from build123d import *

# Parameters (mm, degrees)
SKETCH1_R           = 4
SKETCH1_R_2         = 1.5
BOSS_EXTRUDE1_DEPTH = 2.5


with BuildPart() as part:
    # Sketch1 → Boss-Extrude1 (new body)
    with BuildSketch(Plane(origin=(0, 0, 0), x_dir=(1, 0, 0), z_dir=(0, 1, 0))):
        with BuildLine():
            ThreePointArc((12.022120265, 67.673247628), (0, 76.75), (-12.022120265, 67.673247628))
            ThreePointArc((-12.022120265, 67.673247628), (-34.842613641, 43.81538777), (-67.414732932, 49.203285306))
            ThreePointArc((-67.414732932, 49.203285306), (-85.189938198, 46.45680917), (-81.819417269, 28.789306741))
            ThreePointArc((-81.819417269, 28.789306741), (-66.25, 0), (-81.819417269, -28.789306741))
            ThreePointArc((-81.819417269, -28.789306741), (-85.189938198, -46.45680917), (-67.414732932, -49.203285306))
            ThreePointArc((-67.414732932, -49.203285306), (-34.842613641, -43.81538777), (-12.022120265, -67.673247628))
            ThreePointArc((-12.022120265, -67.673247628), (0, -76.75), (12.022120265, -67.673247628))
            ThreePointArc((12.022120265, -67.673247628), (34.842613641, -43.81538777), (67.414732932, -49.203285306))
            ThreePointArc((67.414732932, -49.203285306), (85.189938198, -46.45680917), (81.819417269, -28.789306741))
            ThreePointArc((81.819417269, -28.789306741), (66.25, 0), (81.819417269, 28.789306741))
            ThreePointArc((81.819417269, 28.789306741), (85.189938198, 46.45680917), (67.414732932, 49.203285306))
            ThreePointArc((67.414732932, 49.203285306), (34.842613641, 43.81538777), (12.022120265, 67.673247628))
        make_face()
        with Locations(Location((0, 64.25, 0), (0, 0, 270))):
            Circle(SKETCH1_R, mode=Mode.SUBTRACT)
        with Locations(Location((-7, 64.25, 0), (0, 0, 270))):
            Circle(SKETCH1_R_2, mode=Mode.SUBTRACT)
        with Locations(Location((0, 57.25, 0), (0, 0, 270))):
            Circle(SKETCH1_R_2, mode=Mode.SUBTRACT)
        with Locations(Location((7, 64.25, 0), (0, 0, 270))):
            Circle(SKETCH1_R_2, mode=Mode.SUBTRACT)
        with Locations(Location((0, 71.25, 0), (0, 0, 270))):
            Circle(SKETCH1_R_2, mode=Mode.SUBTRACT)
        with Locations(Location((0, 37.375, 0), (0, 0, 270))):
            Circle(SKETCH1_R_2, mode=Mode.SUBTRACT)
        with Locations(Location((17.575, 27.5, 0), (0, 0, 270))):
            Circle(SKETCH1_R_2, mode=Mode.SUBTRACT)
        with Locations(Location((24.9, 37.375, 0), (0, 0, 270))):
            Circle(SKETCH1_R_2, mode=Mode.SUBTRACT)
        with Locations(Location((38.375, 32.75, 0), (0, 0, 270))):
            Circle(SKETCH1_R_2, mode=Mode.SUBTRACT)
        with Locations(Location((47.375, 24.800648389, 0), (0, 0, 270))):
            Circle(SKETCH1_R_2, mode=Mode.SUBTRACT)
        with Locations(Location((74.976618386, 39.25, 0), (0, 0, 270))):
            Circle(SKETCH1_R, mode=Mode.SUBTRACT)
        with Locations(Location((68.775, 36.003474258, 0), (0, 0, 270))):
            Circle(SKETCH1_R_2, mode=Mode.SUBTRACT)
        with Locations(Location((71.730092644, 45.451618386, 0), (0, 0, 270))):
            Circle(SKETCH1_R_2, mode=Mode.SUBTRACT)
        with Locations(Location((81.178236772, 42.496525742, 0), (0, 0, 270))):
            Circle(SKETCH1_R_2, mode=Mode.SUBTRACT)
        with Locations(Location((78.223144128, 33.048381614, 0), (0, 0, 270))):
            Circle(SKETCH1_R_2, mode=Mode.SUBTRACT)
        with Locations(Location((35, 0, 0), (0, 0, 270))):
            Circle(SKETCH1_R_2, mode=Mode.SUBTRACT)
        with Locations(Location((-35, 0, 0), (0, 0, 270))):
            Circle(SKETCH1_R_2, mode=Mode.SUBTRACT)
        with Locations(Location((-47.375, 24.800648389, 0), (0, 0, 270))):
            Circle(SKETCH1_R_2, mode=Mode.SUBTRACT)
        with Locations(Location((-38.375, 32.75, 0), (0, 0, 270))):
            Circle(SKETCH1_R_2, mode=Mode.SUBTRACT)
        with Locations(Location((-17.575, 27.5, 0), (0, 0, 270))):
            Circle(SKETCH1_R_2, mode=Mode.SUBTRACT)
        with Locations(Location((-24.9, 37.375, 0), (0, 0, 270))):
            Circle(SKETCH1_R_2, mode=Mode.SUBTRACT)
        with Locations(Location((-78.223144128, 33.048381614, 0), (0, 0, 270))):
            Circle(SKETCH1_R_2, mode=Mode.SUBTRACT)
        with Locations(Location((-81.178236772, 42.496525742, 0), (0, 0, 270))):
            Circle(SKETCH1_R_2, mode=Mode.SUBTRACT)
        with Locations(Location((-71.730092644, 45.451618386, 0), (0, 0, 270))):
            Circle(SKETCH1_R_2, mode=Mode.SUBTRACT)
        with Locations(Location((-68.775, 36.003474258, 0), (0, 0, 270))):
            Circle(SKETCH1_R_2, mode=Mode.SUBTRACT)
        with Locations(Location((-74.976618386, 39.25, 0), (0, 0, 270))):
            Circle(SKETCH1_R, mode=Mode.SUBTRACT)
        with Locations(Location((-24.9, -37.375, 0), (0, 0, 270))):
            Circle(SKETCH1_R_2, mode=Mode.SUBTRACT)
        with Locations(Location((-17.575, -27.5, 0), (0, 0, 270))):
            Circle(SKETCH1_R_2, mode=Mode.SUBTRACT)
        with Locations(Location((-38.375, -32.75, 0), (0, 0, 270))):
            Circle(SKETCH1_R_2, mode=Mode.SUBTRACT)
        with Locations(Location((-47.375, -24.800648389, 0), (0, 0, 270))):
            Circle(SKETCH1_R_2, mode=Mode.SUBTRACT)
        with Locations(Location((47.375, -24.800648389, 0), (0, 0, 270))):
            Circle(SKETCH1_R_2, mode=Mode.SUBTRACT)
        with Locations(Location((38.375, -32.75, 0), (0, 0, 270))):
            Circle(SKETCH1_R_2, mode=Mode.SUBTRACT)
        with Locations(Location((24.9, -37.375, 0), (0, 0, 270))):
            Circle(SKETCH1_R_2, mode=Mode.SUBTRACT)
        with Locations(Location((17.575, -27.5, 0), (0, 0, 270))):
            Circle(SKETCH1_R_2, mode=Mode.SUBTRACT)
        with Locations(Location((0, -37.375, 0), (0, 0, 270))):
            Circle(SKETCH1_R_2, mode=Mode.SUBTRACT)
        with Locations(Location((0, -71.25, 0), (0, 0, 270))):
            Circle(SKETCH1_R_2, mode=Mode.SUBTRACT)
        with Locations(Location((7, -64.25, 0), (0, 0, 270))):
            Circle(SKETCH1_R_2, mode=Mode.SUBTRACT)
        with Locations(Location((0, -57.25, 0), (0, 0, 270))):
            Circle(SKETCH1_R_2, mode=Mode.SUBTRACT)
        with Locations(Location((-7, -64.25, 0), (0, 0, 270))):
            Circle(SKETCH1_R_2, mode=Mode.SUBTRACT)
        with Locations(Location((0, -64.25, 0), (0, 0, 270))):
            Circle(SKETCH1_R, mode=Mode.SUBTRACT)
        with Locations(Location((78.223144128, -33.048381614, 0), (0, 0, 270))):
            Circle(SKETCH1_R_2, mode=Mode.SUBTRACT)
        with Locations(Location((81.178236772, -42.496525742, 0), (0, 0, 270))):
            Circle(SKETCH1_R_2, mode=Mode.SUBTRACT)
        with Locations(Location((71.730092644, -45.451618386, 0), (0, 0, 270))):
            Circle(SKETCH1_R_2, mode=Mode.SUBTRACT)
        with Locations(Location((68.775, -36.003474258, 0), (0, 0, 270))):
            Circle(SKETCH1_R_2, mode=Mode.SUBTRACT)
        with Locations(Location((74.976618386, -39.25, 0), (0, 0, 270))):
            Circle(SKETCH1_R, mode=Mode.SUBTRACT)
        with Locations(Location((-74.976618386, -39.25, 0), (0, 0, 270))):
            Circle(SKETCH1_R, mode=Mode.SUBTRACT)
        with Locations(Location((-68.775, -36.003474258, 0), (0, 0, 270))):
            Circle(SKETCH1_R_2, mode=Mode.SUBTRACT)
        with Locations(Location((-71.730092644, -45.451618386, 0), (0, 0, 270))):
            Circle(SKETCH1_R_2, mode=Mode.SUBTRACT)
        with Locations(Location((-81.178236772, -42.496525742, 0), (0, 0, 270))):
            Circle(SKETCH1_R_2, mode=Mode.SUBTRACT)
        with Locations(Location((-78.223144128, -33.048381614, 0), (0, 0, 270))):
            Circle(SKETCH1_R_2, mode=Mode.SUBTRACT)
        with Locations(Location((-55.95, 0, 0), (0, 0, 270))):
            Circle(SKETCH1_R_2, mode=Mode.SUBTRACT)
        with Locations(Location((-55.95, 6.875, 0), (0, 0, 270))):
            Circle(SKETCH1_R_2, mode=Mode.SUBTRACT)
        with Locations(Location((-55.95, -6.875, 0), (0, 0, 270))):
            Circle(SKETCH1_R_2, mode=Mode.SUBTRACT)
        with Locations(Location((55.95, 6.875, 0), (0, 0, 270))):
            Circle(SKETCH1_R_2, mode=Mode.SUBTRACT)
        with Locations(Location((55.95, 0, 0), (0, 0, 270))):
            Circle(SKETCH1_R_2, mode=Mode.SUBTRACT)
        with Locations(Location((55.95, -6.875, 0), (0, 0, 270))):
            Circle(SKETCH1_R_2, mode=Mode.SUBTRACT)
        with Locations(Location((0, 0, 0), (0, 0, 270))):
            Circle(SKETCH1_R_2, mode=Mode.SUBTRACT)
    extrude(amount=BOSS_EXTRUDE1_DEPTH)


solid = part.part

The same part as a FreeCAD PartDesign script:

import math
import FreeCAD as App
import Part
import Sketcher

V = App.Vector
Q = App.Units.Quantity

doc = App.newDocument("Part")
body = doc.addObject("PartDesign::Body", "Body")

sketch1 = body.newObject("Sketcher::SketchObject", "Sketch")
sketch1.AttachmentSupport = (doc.getObject("XZ_Plane"), [""])
sketch1.MapMode = "FlatFace"
sketch1.addGeometry(Part.ArcOfCircle(Part.Circle(V(0, -64.3, 0), V(0, 0, 1), 12.5), math.radians(-164), math.radians(-16)), False)
sketch1.addGeometry(Part.ArcOfCircle(Part.Circle(V(-46, -77.4, 0), V(0, 0, 1), 35.4), math.radians(16), math.radians(127)), False)
sketch1.addGeometry(Part.ArcOfCircle(Part.Circle(V(-75, -39.2, 0), V(0, 0, 1), 12.5), math.radians(123), math.radians(307)), False)
sketch1.addGeometry(Part.ArcOfCircle(Part.Circle(V(-100.7, 0, 0), V(0, 0, 1), 34.4), math.radians(-57), math.radians(57)), False)
sketch1.addGeometry(Part.ArcOfCircle(Part.Circle(V(-75, 39.2, 0), V(0, 0, 1), 12.5), math.radians(53), math.radians(237)), False)
sketch1.addGeometry(Part.ArcOfCircle(Part.Circle(V(-46, 77.4, 0), V(0, 0, 1), 35.4), math.radians(-127), math.radians(-16)), False)
sketch1.addGeometry(Part.ArcOfCircle(Part.Circle(V(0, 64.3, 0), V(0, 0, 1), 12.5), math.radians(16), math.radians(164)), False)
sketch1.addGeometry(Part.ArcOfCircle(Part.Circle(V(46, 77.4, 0), V(0, 0, 1), 35.4), math.radians(-164), math.radians(-53)), False)
sketch1.addGeometry(Part.ArcOfCircle(Part.Circle(V(75, 39.2, 0), V(0, 0, 1), 12.5), math.radians(-57), math.radians(127)), False)
sketch1.addGeometry(Part.ArcOfCircle(Part.Circle(V(100.7, 0, 0), V(0, 0, 1), 34.4), math.radians(123), math.radians(237)), False)
sketch1.addGeometry(Part.ArcOfCircle(Part.Circle(V(75, -39.2, 0), V(0, 0, 1), 12.5), math.radians(-127), math.radians(57)), False)
sketch1.addGeometry(Part.ArcOfCircle(Part.Circle(V(46, -77.4, 0), V(0, 0, 1), 35.4), math.radians(53), math.radians(164)), False)
sketch1.addGeometry(Part.Circle(V(-81.2, 42.5, 0), V(0, 0, 1), 1.5), False)
sketch1.addGeometry(Part.Circle(V(-75, 39.2, 0), V(0, 0, 1), 4), False)
sketch1.addGeometry(Part.Circle(V(-71.7, 45.5, 0), V(0, 0, 1), 1.5), False)
sketch1.addGeometry(Part.Circle(V(-7, 64.2, 0), V(0, 0, 1), 1.5), False)
sketch1.addGeometry(Part.Circle(V(-24.9, 37.4, 0), V(0, 0, 1), 1.5), False)
sketch1.addGeometry(Part.Circle(V(-78.2, 33, 0), V(0, 0, 1), 1.5), False)
sketch1.addGeometry(Part.Circle(V(-68.8, 36, 0), V(0, 0, 1), 1.5), False)
sketch1.addGeometry(Part.Circle(V(-47.4, 24.8, 0), V(0, 0, 1), 1.5), False)
sketch1.addGeometry(Part.Circle(V(-56, 6.9, 0), V(0, 0, 1), 1.5), False)
sketch1.addGeometry(Part.Circle(V(-38.4, 32.8, 0), V(0, 0, 1), 1.5), False)
sketch1.addGeometry(Part.Circle(V(-17.6, 27.5, 0), V(0, 0, 1), 1.5), False)
sketch1.addGeometry(Part.Circle(V(0, 71.2, 0), V(0, 0, 1), 1.5), False)
sketch1.addGeometry(Part.Circle(V(0, 64.2, 0), V(0, 0, 1), 4), False)
sketch1.addGeometry(Part.Circle(V(7, 64.2, 0), V(0, 0, 1), 1.5), False)
sketch1.addGeometry(Part.Circle(V(0, 57.2, 0), V(0, 0, 1), 1.5), False)
sketch1.addGeometry(Part.Circle(V(0, 37.4, 0), V(0, 0, 1), 1.5), False)
sketch1.addGeometry(Part.Circle(V(24.9, 37.4, 0), V(0, 0, 1), 1.5), False)
sketch1.addGeometry(Part.Circle(V(71.7, 45.5, 0), V(0, 0, 1), 1.5), False)
sketch1.addGeometry(Part.Circle(V(81.2, 42.5, 0), V(0, 0, 1), 1.5), False)
sketch1.addGeometry(Part.Circle(V(75, 39.2, 0), V(0, 0, 1), 4), False)
sketch1.addGeometry(Part.Circle(V(17.6, 27.5, 0), V(0, 0, 1), 1.5), False)
sketch1.addGeometry(Part.Circle(V(38.4, 32.8, 0), V(0, 0, 1), 1.5), False)
sketch1.addGeometry(Part.Circle(V(47.4, 24.8, 0), V(0, 0, 1), 1.5), False)
sketch1.addGeometry(Part.Circle(V(68.8, 36, 0), V(0, 0, 1), 1.5), False)
sketch1.addGeometry(Part.Circle(V(78.2, 33, 0), V(0, 0, 1), 1.5), False)
sketch1.addGeometry(Part.Circle(V(56, 6.9, 0), V(0, 0, 1), 1.5), False)
sketch1.addGeometry(Part.Circle(V(-56, 0, 0), V(0, 0, 1), 1.5), False)
sketch1.addGeometry(Part.Circle(V(-56, -6.9, 0), V(0, 0, 1), 1.5), False)
sketch1.addGeometry(Part.Circle(V(-78.2, -33, 0), V(0, 0, 1), 1.5), False)
sketch1.addGeometry(Part.Circle(V(-68.8, -36, 0), V(0, 0, 1), 1.5), False)
sketch1.addGeometry(Part.Circle(V(-47.4, -24.8, 0), V(0, 0, 1), 1.5), False)
sketch1.addGeometry(Part.Circle(V(-35, 0, 0), V(0, 0, 1), 1.5), False)
sketch1.addGeometry(Part.Circle(V(-38.4, -32.8, 0), V(0, 0, 1), 1.5), False)
sketch1.addGeometry(Part.Circle(V(-17.6, -27.5, 0), V(0, 0, 1), 1.5), False)
sketch1.addGeometry(Part.Circle(V(-75, -39.2, 0), V(0, 0, 1), 4), False)
sketch1.addGeometry(Part.Circle(V(-81.2, -42.5, 0), V(0, 0, 1), 1.5), False)
sketch1.addGeometry(Part.Circle(V(-71.7, -45.5, 0), V(0, 0, 1), 1.5), False)
sketch1.addGeometry(Part.Circle(V(-24.9, -37.4, 0), V(0, 0, 1), 1.5), False)
sketch1.addGeometry(Part.Circle(V(-7, -64.2, 0), V(0, 0, 1), 1.5), False)
sketch1.addGeometry(Part.Circle(V(0, 0, 0), V(0, 0, 1), 1.5), False)
sketch1.addGeometry(Part.Circle(V(35, 0, 0), V(0, 0, 1), 1.5), False)
sketch1.addGeometry(Part.Circle(V(17.6, -27.5, 0), V(0, 0, 1), 1.5), False)
sketch1.addGeometry(Part.Circle(V(38.4, -32.8, 0), V(0, 0, 1), 1.5), False)
sketch1.addGeometry(Part.Circle(V(56, 0, 0), V(0, 0, 1), 1.5), False)
sketch1.addGeometry(Part.Circle(V(56, -6.9, 0), V(0, 0, 1), 1.5), False)
sketch1.addGeometry(Part.Circle(V(47.4, -24.8, 0), V(0, 0, 1), 1.5), False)
sketch1.addGeometry(Part.Circle(V(68.8, -36, 0), V(0, 0, 1), 1.5), False)
sketch1.addGeometry(Part.Circle(V(78.2, -33, 0), V(0, 0, 1), 1.5), False)
sketch1.addGeometry(Part.Circle(V(0, -37.4, 0), V(0, 0, 1), 1.5), False)
sketch1.addGeometry(Part.Circle(V(24.9, -37.4, 0), V(0, 0, 1), 1.5), False)
sketch1.addGeometry(Part.Circle(V(0, -57.2, 0), V(0, 0, 1), 1.5), False)
sketch1.addGeometry(Part.Circle(V(0, -64.2, 0), V(0, 0, 1), 4), False)
sketch1.addGeometry(Part.Circle(V(7, -64.2, 0), V(0, 0, 1), 1.5), False)
sketch1.addGeometry(Part.Circle(V(0, -71.2, 0), V(0, 0, 1), 1.5), False)
sketch1.addGeometry(Part.Circle(V(71.7, -45.5, 0), V(0, 0, 1), 1.5), False)
sketch1.addGeometry(Part.Circle(V(75, -39.2, 0), V(0, 0, 1), 4), False)
sketch1.addGeometry(Part.Circle(V(81.2, -42.5, 0), V(0, 0, 1), 1.5), False)
sketch1.addConstraint(Sketcher.Constraint("Tangent", 0, 1, 1, 1))
sketch1.addConstraint(Sketcher.Constraint("Tangent", 1, 2, 2, 2))
sketch1.addConstraint(Sketcher.Constraint("Tangent", 2, 1, 3, 1))
sketch1.addConstraint(Sketcher.Constraint("Tangent", 3, 2, 4, 2))
sketch1.addConstraint(Sketcher.Constraint("Tangent", 4, 1, 5, 1))
sketch1.addConstraint(Sketcher.Constraint("Tangent", 5, 2, 6, 2))
sketch1.addConstraint(Sketcher.Constraint("Tangent", 6, 1, 7, 1))
sketch1.addConstraint(Sketcher.Constraint("Tangent", 7, 2, 8, 2))
sketch1.addConstraint(Sketcher.Constraint("Tangent", 8, 1, 9, 1))
sketch1.addConstraint(Sketcher.Constraint("Tangent", 9, 2, 10, 2))
sketch1.addConstraint(Sketcher.Constraint("Tangent", 10, 1, 11, 1))
sketch1.addConstraint(Sketcher.Constraint("Tangent", 11, 2, 0, 2))
sketch1.addConstraint(Sketcher.Constraint("Coincident", 51, 3, -1, 1))
sketch1.addConstraint(Sketcher.Constraint("Coincident", 13, 3, 4, 3))
sketch1.addConstraint(Sketcher.Constraint("Coincident", 24, 3, 6, 3))
sketch1.addConstraint(Sketcher.Constraint("Coincident", 31, 3, 8, 3))
sketch1.addConstraint(Sketcher.Constraint("Coincident", 46, 3, 2, 3))
sketch1.addConstraint(Sketcher.Constraint("Coincident", 63, 3, 0, 3))
sketch1.addConstraint(Sketcher.Constraint("Coincident", 67, 3, 10, 3))
sketch1.addConstraint(Sketcher.Constraint("Equal", 0, 2))
sketch1.addConstraint(Sketcher.Constraint("Equal", 2, 4))
sketch1.addConstraint(Sketcher.Constraint("Equal", 1, 5))
sketch1.addConstraint(Sketcher.Constraint("Equal", 4, 6))
sketch1.addConstraint(Sketcher.Constraint("Equal", 5, 7))
sketch1.addConstraint(Sketcher.Constraint("Equal", 6, 8))
sketch1.addConstraint(Sketcher.Constraint("Equal", 3, 9))
sketch1.addConstraint(Sketcher.Constraint("Equal", 8, 10))
sketch1.addConstraint(Sketcher.Constraint("Equal", 7, 11))
sketch1.addConstraint(Sketcher.Constraint("Equal", 12, 14))
sketch1.addConstraint(Sketcher.Constraint("Equal", 14, 15))
sketch1.addConstraint(Sketcher.Constraint("Equal", 15, 16))
sketch1.addConstraint(Sketcher.Constraint("Equal", 16, 17))
sketch1.addConstraint(Sketcher.Constraint("Equal", 17, 18))
sketch1.addConstraint(Sketcher.Constraint("Equal", 18, 19))
sketch1.addConstraint(Sketcher.Constraint("Equal", 19, 20))
sketch1.addConstraint(Sketcher.Constraint("Equal", 20, 21))
sketch1.addConstraint(Sketcher.Constraint("Equal", 21, 22))
sketch1.addConstraint(Sketcher.Constraint("Equal", 22, 23))
sketch1.addConstraint(Sketcher.Constraint("Equal", 13, 24))
sketch1.addConstraint(Sketcher.Constraint("Equal", 23, 25))
sketch1.addConstraint(Sketcher.Constraint("Equal", 25, 26))
sketch1.addConstraint(Sketcher.Constraint("Equal", 26, 27))
sketch1.addConstraint(Sketcher.Constraint("Equal", 27, 28))
sketch1.addConstraint(Sketcher.Constraint("Equal", 28, 29))
sketch1.addConstraint(Sketcher.Constraint("Equal", 29, 30))
sketch1.addConstraint(Sketcher.Constraint("Equal", 24, 31))
sketch1.addConstraint(Sketcher.Constraint("Equal", 30, 32))
sketch1.addConstraint(Sketcher.Constraint("Equal", 32, 33))
sketch1.addConstraint(Sketcher.Constraint("Equal", 33, 34))
sketch1.addConstraint(Sketcher.Constraint("Equal", 34, 35))
sketch1.addConstraint(Sketcher.Constraint("Equal", 35, 36))
sketch1.addConstraint(Sketcher.Constraint("Equal", 36, 37))
sketch1.addConstraint(Sketcher.Constraint("Equal", 37, 38))
sketch1.addConstraint(Sketcher.Constraint("Equal", 38, 39))
sketch1.addConstraint(Sketcher.Constraint("Equal", 39, 40))
sketch1.addConstraint(Sketcher.Constraint("Equal", 40, 41))
sketch1.addConstraint(Sketcher.Constraint("Equal", 41, 42))
sketch1.addConstraint(Sketcher.Constraint("Equal", 42, 43))
sketch1.addConstraint(Sketcher.Constraint("Equal", 43, 44))
sketch1.addConstraint(Sketcher.Constraint("Equal", 44, 45))
sketch1.addConstraint(Sketcher.Constraint("Equal", 31, 46))
sketch1.addConstraint(Sketcher.Constraint("Equal", 45, 47))
sketch1.addConstraint(Sketcher.Constraint("Equal", 47, 48))
sketch1.addConstraint(Sketcher.Constraint("Equal", 48, 49))
sketch1.addConstraint(Sketcher.Constraint("Equal", 49, 50))
sketch1.addConstraint(Sketcher.Constraint("Equal", 50, 51))
sketch1.addConstraint(Sketcher.Constraint("Equal", 51, 52))
sketch1.addConstraint(Sketcher.Constraint("Equal", 52, 53))
sketch1.addConstraint(Sketcher.Constraint("Equal", 53, 54))
sketch1.addConstraint(Sketcher.Constraint("Equal", 54, 55))
sketch1.addConstraint(Sketcher.Constraint("Equal", 55, 56))
sketch1.addConstraint(Sketcher.Constraint("Equal", 56, 57))
sketch1.addConstraint(Sketcher.Constraint("Equal", 57, 58))
sketch1.addConstraint(Sketcher.Constraint("Equal", 58, 59))
sketch1.addConstraint(Sketcher.Constraint("Equal", 59, 60))
sketch1.addConstraint(Sketcher.Constraint("Equal", 60, 61))
sketch1.addConstraint(Sketcher.Constraint("Equal", 61, 62))
sketch1.addConstraint(Sketcher.Constraint("Equal", 46, 63))
sketch1.addConstraint(Sketcher.Constraint("Equal", 62, 64))
sketch1.addConstraint(Sketcher.Constraint("Equal", 64, 65))
sketch1.addConstraint(Sketcher.Constraint("Equal", 65, 66))
sketch1.addConstraint(Sketcher.Constraint("Equal", 63, 67))
sketch1.addConstraint(Sketcher.Constraint("Equal", 66, 68))
sketch1.addConstraint(Sketcher.Constraint("Symmetric", 0, 3, 6, 3, -1, 1))
sketch1.addConstraint(Sketcher.Constraint("Symmetric", 2, 3, 8, 3, -1, 1))
sketch1.addConstraint(Sketcher.Constraint("Symmetric", 4, 3, 10, 3, -1, 1))
sketch1.addConstraint(Sketcher.Constraint("Symmetric", 37, 3, 39, 3, -1, 1))
sketch1.addConstraint(Sketcher.Constraint("Symmetric", 36, 3, 40, 3, -1, 1))
sketch1.addConstraint(Sketcher.Constraint("Symmetric", 35, 3, 41, 3, -1, 1))
sketch1.addConstraint(Sketcher.Constraint("Symmetric", 34, 3, 42, 3, -1, 1))
sketch1.addConstraint(Sketcher.Constraint("Symmetric", 33, 3, 44, 3, -1, 1))
sketch1.addConstraint(Sketcher.Constraint("Symmetric", 32, 3, 45, 3, -1, 1))
sketch1.addConstraint(Sketcher.Constraint("Symmetric", 30, 3, 47, 3, -1, 1))
sketch1.addConstraint(Sketcher.Constraint("Symmetric", 29, 3, 48, 3, -1, 1))
sketch1.addConstraint(Sketcher.Constraint("Symmetric", 28, 3, 49, 3, -1, 1))
sketch1.addConstraint(Sketcher.Constraint("Symmetric", 25, 3, 50, 3, -1, 1))
sketch1.addConstraint(Sketcher.Constraint("Symmetric", 43, 3, 52, 3, -1, 1))
sketch1.addConstraint(Sketcher.Constraint("Symmetric", 22, 3, 53, 3, -1, 1))
sketch1.addConstraint(Sketcher.Constraint("Symmetric", 21, 3, 54, 3, -1, 1))
sketch1.addConstraint(Sketcher.Constraint("Symmetric", 38, 3, 55, 3, -1, 1))
sketch1.addConstraint(Sketcher.Constraint("Symmetric", 20, 3, 56, 3, -1, 1))
sketch1.addConstraint(Sketcher.Constraint("Symmetric", 19, 3, 57, 3, -1, 1))
sketch1.addConstraint(Sketcher.Constraint("Symmetric", 18, 3, 58, 3, -1, 1))
sketch1.addConstraint(Sketcher.Constraint("Symmetric", 17, 3, 59, 3, -1, 1))
sketch1.addConstraint(Sketcher.Constraint("Symmetric", 27, 3, 60, 3, -1, 1))
sketch1.addConstraint(Sketcher.Constraint("Symmetric", 16, 3, 61, 3, -1, 1))
sketch1.addConstraint(Sketcher.Constraint("Symmetric", 26, 3, 62, 3, -1, 1))
sketch1.addConstraint(Sketcher.Constraint("Symmetric", 15, 3, 64, 3, -1, 1))
sketch1.addConstraint(Sketcher.Constraint("Symmetric", 23, 3, 65, 3, -1, 1))
sketch1.addConstraint(Sketcher.Constraint("Symmetric", 14, 3, 66, 3, -1, 1))
sketch1.addConstraint(Sketcher.Constraint("Symmetric", 12, 3, 68, 3, -1, 1))
sketch1.addConstraint(Sketcher.Constraint("Symmetric", 5, 3, 7, 3, -2))
sketch1.addConstraint(Sketcher.Constraint("Symmetric", 15, 3, 25, 3, -2))
sketch1.addConstraint(Sketcher.Constraint("Symmetric", 16, 3, 28, 3, -2))
sketch1.addConstraint(Sketcher.Constraint("Symmetric", 14, 3, 29, 3, -2))
sketch1.addConstraint(Sketcher.Constraint("Symmetric", 12, 3, 30, 3, -2))
sketch1.addConstraint(Sketcher.Constraint("Symmetric", 22, 3, 32, 3, -2))
sketch1.addConstraint(Sketcher.Constraint("Symmetric", 21, 3, 33, 3, -2))
sketch1.addConstraint(Sketcher.Constraint("Symmetric", 19, 3, 34, 3, -2))
sketch1.addConstraint(Sketcher.Constraint("Symmetric", 18, 3, 35, 3, -2))
sketch1.addConstraint(Sketcher.Constraint("Symmetric", 17, 3, 36, 3, -2))
sketch1.addConstraint(Sketcher.Constraint("Symmetric", 20, 3, 37, 3, -2))
sketch1.addConstraint(Sketcher.Constraint("PointOnObject", 3, 3, -1))
sketch1.addConstraint(Sketcher.Constraint("PointOnObject", 23, 3, -2))
sketch1.addConstraint(Sketcher.Constraint("PointOnObject", 26, 3, -2))
sketch1.addConstraint(Sketcher.Constraint("PointOnObject", 27, 3, -2))
sketch1.addConstraint(Sketcher.Constraint("PointOnObject", 38, 3, -1))
sketch1.addConstraint(Sketcher.Constraint("PointOnObject", 43, 3, -1))
sketch1.addConstraint(Sketcher.Constraint("Horizontal", 6, 3, 15, 3))
sketch1.addConstraint(Sketcher.Constraint("Horizontal", 16, 3, 27, 3))
sketch1.addConstraint(Sketcher.Constraint("Vertical", 20, 3, 38, 3))
sketch1.addConstraint(Sketcher.Constraint("Diameter", 12, Q("3 mm")))
sketch1.addConstraint(Sketcher.Constraint("Diameter", 13, Q("8 mm")))
sketch1.addConstraint(Sketcher.Constraint("Radius", 0, Q("12.5 mm")))
sketch1.addConstraint(Sketcher.Constraint("DistanceX", 15, 3, -1, 1, Q("7 mm")))
sketch1.addConstraint(Sketcher.Constraint("DistanceX", 43, 3, -1, 1, Q("35 mm")))
sketch1.addConstraint(Sketcher.Constraint("DistanceX", 16, 3, -1, 1, Q("24.9 mm")))
sketch1.addConstraint(Sketcher.Constraint("DistanceY", -1, 1, 22, 3, Q("27.5 mm")))
sketch1.addConstraint(Sketcher.Constraint("DistanceY", 0, 3, -1, 1, Q("64.25 mm")))
sketch1.addConstraint(Sketcher.Constraint("DistanceY", 2, 3, -1, 1, Q("39.25 mm")))
sketch1.addConstraint(Sketcher.Constraint("DistanceX", 20, 3, -1, 1, Q("55.95 mm")))
sketch1.addConstraint(Sketcher.Constraint("DistanceY", -1, 1, 21, 3, Q("32.75 mm")))
sketch1.addConstraint(Sketcher.Constraint("DistanceY", -1, 1, 23, 3, Q("71.25 mm")))
sketch1.addConstraint(Sketcher.Constraint("DistanceY", -1, 1, 26, 3, Q("57.25 mm")))
sketch1.addConstraint(Sketcher.Constraint("DistanceY", -1, 1, 16, 3, Q("37.375 mm")))
sketch1.addConstraint(Sketcher.Constraint("DistanceX", 18, 3, -1, 1, Q("68.775 mm")))
sketch1.addConstraint(Sketcher.Constraint("DistanceX", 19, 3, -1, 1, Q("47.375 mm")))
sketch1.addConstraint(Sketcher.Constraint("DistanceY", -1, 1, 20, 3, Q("6.875 mm")))
sketch1.addConstraint(Sketcher.Constraint("DistanceX", 21, 3, -1, 1, Q("38.375 mm")))
sketch1.addConstraint(Sketcher.Constraint("DistanceX", 22, 3, -1, 1, Q("17.575 mm")))
sketch1.addConstraint(Sketcher.Constraint("Radius", 1, Q("35.355773 mm")))
sketch1.addConstraint(Sketcher.Constraint("Radius", 3, Q("34.401767 mm")))
sketch1.addConstraint(Sketcher.Constraint("DistanceX", 1, 3, -1, 1, Q("46.026229 mm")))
sketch1.addConstraint(Sketcher.Constraint("DistanceY", -1, 1, 14, 3, Q("45.451618 mm")))
sketch1.addConstraint(Sketcher.Constraint("DistanceY", -1, 1, 17, 3, Q("33.048382 mm")))
sketch1.addConstraint(Sketcher.Constraint("DistanceY", -1, 1, 19, 3, Q("24.800648 mm")))
sketch1.addConstraint(Sketcher.Constraint("DistanceX", 12, 3, -1, 1, Q("81.178237 mm")))
sketch1.addConstraint(Sketcher.Constraint("DistanceY", -1, 1, 12, 3, Q("42.496526 mm")))
sketch1.addConstraint(Sketcher.Constraint("DistanceX", 14, 3, -1, 1, Q("71.730093 mm")))
sketch1.addConstraint(Sketcher.Constraint("DistanceX", 17, 3, -1, 1, Q("78.223144 mm")))
sketch1.addConstraint(Sketcher.Constraint("DistanceY", -1, 1, 18, 3, Q("36.003474 mm")))
pad1 = body.newObject("PartDesign::Pad", "Pad")
pad1.Profile = sketch1
pad1.Length = 2.5
pad1.Reversed = True

doc.recompute()
